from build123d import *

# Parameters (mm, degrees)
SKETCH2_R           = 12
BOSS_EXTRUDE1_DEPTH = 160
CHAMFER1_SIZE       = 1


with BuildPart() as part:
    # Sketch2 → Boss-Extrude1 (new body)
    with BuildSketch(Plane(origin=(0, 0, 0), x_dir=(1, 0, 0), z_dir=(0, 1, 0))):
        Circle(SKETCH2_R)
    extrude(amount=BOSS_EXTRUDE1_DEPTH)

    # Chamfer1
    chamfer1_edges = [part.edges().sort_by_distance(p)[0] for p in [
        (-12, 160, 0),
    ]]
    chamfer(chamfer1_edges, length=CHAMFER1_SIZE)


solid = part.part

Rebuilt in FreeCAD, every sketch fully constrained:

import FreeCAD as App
import Part
import Sketcher


def edges_at(feature, points):
    """Names of the edges that pass closest to the given points."""
    edges = feature.Shape.Edges
    near = lambda p: min(range(len(edges)), key=lambda i: edges[i].distToShape(Part.Vertex(*p))[0])
    return sorted({f"Edge{near(p) + 1}" for p in points})

doc = App.newDocument("Part")
params = doc.addObject("Spreadsheet::Sheet", "Params")
for row, (alias, value) in enumerate([
    ("sketch1_diameter", "24 mm"),
    ("pad1_length", "160 mm"),
    ("chamfer_size", "1 mm"),
], start=1):
    params.set(f"A{row}", alias)
    params.set(f"B{row}", "=" + value)
    params.setAlias(f"B{row}", alias)

body = doc.addObject("PartDesign::Body", "Body")

# Sketch on XZ plane
sketch1 = body.newObject("Sketcher::SketchObject", "Sketch")
sketch1.AttachmentSupport = (doc.getObject("XZ_Plane"), [""])
sketch1.MapMode = "FlatFace"
sketch1.addGeometry(Part.Circle(App.Vector(0, 0, 0), App.Vector(0, 0, 1), 12), False)
sketch1.addConstraint(Sketcher.Constraint("Coincident", 0, 3, -1, 1))
sketch1.addConstraint(Sketcher.Constraint("Diameter", 0, 24.0))
sketch1.setExpression("Constraints[1]", "Params.sketch1_diameter")
pad1 = body.newObject("PartDesign::Pad", "Pad")
pad1.Profile = sketch1
pad1.setExpression("Length", "Params.pad1_length")
pad1.Reversed = True
doc.recompute()

chamfer = body.newObject("PartDesign::Chamfer", "Chamfer")
chamfer.Base = (pad1, edges_at(pad1, [(-12, 160, 0)]))
chamfer.setExpression("Size", "Params.chamfer_size")

doc.recompute()
